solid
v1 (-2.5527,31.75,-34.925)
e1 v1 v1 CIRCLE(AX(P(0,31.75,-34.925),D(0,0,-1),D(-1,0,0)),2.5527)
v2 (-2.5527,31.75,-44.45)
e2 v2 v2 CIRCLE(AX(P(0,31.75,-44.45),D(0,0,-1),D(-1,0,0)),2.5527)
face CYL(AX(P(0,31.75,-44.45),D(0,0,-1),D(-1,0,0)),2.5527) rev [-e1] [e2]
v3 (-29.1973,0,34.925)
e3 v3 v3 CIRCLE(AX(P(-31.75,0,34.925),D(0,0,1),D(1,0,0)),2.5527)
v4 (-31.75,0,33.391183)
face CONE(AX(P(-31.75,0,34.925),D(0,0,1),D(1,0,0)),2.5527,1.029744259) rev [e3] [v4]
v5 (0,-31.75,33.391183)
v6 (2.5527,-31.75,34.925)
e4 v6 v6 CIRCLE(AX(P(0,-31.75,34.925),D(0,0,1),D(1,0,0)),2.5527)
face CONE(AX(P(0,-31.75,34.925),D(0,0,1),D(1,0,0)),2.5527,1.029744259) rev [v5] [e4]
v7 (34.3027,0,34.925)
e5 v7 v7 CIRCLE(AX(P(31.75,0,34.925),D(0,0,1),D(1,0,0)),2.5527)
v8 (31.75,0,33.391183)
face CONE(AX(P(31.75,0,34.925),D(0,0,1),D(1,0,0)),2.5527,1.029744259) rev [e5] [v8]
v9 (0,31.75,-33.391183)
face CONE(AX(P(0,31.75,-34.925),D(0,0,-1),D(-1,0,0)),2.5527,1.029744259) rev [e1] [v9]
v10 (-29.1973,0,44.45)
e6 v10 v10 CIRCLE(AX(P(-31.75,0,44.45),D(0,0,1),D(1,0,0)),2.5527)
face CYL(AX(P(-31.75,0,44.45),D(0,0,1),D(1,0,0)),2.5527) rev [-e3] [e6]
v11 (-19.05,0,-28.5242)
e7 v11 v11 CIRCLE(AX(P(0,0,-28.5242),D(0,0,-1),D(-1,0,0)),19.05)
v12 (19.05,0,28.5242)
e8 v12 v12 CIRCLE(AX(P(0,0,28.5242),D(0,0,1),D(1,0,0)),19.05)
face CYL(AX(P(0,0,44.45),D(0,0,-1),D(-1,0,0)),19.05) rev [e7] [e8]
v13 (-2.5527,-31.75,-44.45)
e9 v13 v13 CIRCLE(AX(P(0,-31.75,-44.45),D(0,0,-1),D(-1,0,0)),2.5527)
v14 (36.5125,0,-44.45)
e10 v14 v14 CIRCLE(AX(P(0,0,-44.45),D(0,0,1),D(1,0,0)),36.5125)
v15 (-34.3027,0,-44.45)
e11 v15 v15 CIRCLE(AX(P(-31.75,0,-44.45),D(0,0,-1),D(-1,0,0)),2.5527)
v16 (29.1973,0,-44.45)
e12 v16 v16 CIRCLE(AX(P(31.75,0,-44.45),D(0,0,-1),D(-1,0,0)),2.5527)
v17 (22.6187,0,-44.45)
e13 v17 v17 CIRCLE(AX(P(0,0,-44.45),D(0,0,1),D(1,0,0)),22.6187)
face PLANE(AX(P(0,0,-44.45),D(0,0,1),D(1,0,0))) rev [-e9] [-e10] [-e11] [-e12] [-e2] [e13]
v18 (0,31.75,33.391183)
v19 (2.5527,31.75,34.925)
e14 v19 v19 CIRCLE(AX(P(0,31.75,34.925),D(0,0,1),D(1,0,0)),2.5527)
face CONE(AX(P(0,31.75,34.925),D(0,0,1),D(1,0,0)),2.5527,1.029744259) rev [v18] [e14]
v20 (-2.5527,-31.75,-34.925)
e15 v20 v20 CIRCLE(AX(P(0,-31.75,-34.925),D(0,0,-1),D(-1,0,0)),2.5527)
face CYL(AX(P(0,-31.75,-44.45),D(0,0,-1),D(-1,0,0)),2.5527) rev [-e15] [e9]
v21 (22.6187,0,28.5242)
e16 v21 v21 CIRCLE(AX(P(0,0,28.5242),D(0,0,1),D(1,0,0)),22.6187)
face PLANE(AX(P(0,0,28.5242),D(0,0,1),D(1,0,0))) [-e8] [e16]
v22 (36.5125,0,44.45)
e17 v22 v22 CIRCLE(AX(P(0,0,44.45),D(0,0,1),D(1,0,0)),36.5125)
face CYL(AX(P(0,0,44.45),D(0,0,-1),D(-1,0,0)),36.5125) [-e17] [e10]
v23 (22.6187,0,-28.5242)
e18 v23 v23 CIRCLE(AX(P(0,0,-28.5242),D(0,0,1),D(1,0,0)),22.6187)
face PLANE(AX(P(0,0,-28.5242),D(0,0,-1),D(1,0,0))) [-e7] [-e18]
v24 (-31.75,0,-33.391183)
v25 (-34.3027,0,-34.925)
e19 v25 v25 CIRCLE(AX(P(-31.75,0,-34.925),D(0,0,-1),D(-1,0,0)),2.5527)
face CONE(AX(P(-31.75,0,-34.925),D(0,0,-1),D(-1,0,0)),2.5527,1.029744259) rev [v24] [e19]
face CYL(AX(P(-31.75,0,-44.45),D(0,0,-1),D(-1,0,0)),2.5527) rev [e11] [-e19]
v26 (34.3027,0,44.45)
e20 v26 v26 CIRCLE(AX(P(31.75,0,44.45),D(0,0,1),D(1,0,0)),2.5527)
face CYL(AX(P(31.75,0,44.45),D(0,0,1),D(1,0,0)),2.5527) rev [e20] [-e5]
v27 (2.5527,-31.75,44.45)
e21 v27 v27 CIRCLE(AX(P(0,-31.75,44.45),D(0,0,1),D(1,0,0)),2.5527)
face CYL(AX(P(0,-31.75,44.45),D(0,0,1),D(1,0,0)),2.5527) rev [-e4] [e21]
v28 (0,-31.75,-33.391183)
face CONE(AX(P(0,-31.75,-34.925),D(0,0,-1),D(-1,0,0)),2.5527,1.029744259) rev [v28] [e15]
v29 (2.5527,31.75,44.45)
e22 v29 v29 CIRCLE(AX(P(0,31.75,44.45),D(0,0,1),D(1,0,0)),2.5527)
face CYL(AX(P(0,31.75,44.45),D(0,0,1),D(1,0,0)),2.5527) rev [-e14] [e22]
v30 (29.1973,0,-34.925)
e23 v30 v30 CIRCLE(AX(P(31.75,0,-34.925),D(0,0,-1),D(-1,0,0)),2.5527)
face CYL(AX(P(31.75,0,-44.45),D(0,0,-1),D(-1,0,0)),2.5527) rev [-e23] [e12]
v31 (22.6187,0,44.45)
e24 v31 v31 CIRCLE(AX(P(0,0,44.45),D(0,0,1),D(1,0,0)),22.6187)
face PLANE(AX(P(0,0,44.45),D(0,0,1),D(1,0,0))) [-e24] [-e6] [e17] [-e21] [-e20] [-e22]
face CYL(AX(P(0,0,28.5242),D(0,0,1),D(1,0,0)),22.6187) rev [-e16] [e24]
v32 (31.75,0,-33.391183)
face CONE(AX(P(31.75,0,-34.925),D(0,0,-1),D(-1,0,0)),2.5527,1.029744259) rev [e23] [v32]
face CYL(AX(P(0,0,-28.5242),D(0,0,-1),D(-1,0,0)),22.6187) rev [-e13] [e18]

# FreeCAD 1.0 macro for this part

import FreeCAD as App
import Part
import Sketcher
from FreeCAD import Vector
Q = App.Units.Quantity


def add_polygon(sketch, points):
    """Adds a closed chain of lines whose ends are joined by coincident constraints."""
    first, n = sketch.GeometryCount, len(points)
    for a, b in zip(points, points[1:] + points[:1]):
        sketch.addGeometry(Part.LineSegment(App.Vector(*a, 0), App.Vector(*b, 0)), False)
    for i in range(n):
        sketch.addConstraint(Sketcher.Constraint("Coincident", first + i, 2, first + (i + 1) % n, 1))

doc = App.newDocument("Part")
params = doc.addObject("Spreadsheet::Sheet", "Params")
for row, (alias, value) in enumerate([
    ("sketch1_diameter", "1.5 in"),
    ("sketch1_diameter2", "2.875 in"),
    ("pad1_length", "3.5 in"),
    ("sketch2_diameter", "1.781 in"),
    ("pocket1_length", "0.627 in"),
    ("sketch3_height", "0.375 in"),
    ("groove_angle", "360 deg"),
    ("linearpattern_pitch", "44.901281 mm"),
    ("linearpattern2_pitch", "2.5 in"),
    ("linearpattern3_pitch", "44.901281 mm"),
    ("sketch4_height", "0.375 in"),
    ("groove2_angle", "360 deg"),
    ("sketch5_height", "0.375 in"),
    ("groove3_angle", "360 deg"),
    ("sketch6_height", "0.375 in"),
    ("groove4_angle", "360 deg"),
], start=1):
    params.set(f"A{row}", alias)
    params.set(f"B{row}", "=" + value)
    params.setAlias(f"B{row}", alias)

body = doc.addObject("PartDesign::Body", "Body")

# Sketch on XY plane
sketch1 = doc.addObject("Sketcher::SketchObject", "Sketch")
body.addObject(sketch1)
sketch1.AttachmentSupport = (doc.XY_Plane, [""])
sketch1.MapMode = "FlatFace"
sketch1.addGeometry(Part.Circle(Vector(0, 0, 0), Vector(0, 0, 1), 36.5125), False)
sketch1.addGeometry(Part.Circle(Vector(0, 0, 0), Vector(0, 0, 1), 19.05), False)
sketch1.addConstraint(Sketcher.Constraint("Coincident", 0, 3, -1, 1))
sketch1.addConstraint(Sketcher.Constraint("Coincident", 1, 3, -1, 1))
sketch1.addConstraint(Sketcher.Constraint("Diameter", 1, Q("1.5 in")))
sketch1.addConstraint(Sketcher.Constraint("Diameter", 0, Q("2.875 in")))
sketch1.setExpression("Constraints[2]", "Params.sketch1_diameter")
sketch1.setExpression("Constraints[3]", "Params.sketch1_diameter2")
pad1 = doc.addObject("PartDesign::Pad", "Pad")
body.addObject(pad1)
pad1.Profile = sketch1
pad1.setExpression("Length", "Params.pad1_length")
pad1.Midplane = True

# Sketch on XY plane
sketch2 = doc.addObject("Sketcher::SketchObject", "Sketch001")
body.addObject(sketch2)
sketch2.AttachmentSupport = (doc.XY_Plane, [""])
sketch2.MapMode = "FlatFace"
sketch2.AttachmentOffset = App.Placement(Vector(0, 0, 1.75 * 25.4), App.Rotation())
sketch2.addGeometry(Part.Circle(Vector(0, 0, 0), Vector(0, 0, 1), 22.6187), False)
sketch2.addConstraint(Sketcher.Constraint("Coincident", 0, 3, -1, 1))
sketch2.addConstraint(Sketcher.Constraint("Diameter", 0, Q("1.781 in")))
sketch2.setExpression("Constraints[1]", "Params.sketch2_diameter")
pocket1 = doc.addObject("PartDesign::Pocket", "Pocket")
body.addObject(pocket1)
pocket1.Profile = sketch2
pocket1.setExpression("Length", "Params.pocket1_length")

# Sketch on YZ plane
sketch3 = doc.addObject("Sketcher::SketchObject", "Sketch002")
body.addObject(sketch3)
sketch3.AttachmentSupport = (doc.YZ_Plane, [""])
sketch3.MapMode = "FlatFace"
add_polygon(sketch3, [(31.75, 33.391183), (31.75, 44.45), (29.1973, 44.45), (29.1973, 34.925)])  # lines 0-3
sketch3.addGeometry(Part.LineSegment(Vector(31.75, 44.45, 0), Vector(31.75, 33.391183, 0)), True)  # axis
sketch3.addConstraint(Sketcher.Constraint("Vertical", 0))
sketch3.addConstraint(Sketcher.Constraint("Horizontal", 1))
sketch3.addConstraint(Sketcher.Constraint("Vertical", 2))
sketch3.addConstraint(Sketcher.Constraint("Vertical", 4))
sketch3.addConstraint(Sketcher.Constraint("Coincident", 4, 1, 0, 2))
sketch3.addConstraint(Sketcher.Constraint("Equal", 0, 4))
sketch3.addConstraint(Sketcher.Constraint("Angle", 3, Q("-31 deg")))
sketch3.addConstraint(Sketcher.Constraint("DistanceY", 2, 2, 2, 1, Q("0.375 in")))
sketch3.addConstraint(Sketcher.Constraint("DistanceX", -1, 1, 0, 2, Q("1.25 in")))
sketch3.addConstraint(Sketcher.Constraint("DistanceY", -1, 1, 0, 2, Q("1.75 in")))
sketch3.addConstraint(Sketcher.Constraint("DistanceX", 1, 2, 1, 1, Q("0.1005 in")))
sketch3.setExpression("Constraints[11]", "Params.sketch3_height")
groove = doc.addObject("PartDesign::Groove", "Groove")
body.addObject(groove)
groove.Profile = sketch3
groove.ReferenceAxis = (sketch3, ["Axis0"])
groove.setExpression("Angle", "Params.groove_angle")
doc.recompute()

datumline = doc.addObject("PartDesign::Line", "DatumLine")
body.addObject(datumline)
datumline.Placement = App.Placement(Vector(0, 0, 0), App.Rotation(Vector(0, 0, 1), Vector(0.707106781, -0.707106781, 0)))
linearpattern = doc.addObject("PartDesign::LinearPattern", "LinearPattern")
body.addObject(linearpattern)
linearpattern.Originals = [groove]
linearpattern.Direction = (datumline, [""])
linearpattern.Mode = "offset"
linearpattern.setExpression("Offset", "Params.linearpattern_pitch")
linearpattern.Occurrences = 2
body.Tip = linearpattern
doc.recompute()

linearpattern2 = doc.addObject("PartDesign::LinearPattern", "LinearPattern001")
body.addObject(linearpattern2)
linearpattern2.Originals = [groove]
linearpattern2.Direction = (doc.Y_Axis, [""])
linearpattern2.Mode = "offset"
linearpattern2.setExpression("Offset", "Params.linearpattern2_pitch")
linearpattern2.Occurrences = 2
linearpattern2.Reversed = True
body.Tip = linearpattern2
doc.recompute()

datumline2 = doc.addObject("PartDesign::Line", "DatumLine001")
body.addObject(datumline2)
datumline2.Placement = App.Placement(Vector(0, 0, 0), App.Rotation(Vector(0, 0, 1), Vector(-0.707106781, -0.707106781, 0)))
linearpattern3 = doc.addObject("PartDesign::LinearPattern", "LinearPattern002")
body.addObject(linearpattern3)
linearpattern3.Originals = [groove]
linearpattern3.Direction = (datumline2, [""])
linearpattern3.Mode = "offset"
linearpattern3.setExpression("Offset", "Params.linearpattern3_pitch")
linearpattern3.Occurrences = 2
body.Tip = linearpattern3
doc.recompute()

mirrored = doc.addObject("PartDesign::Mirrored", "Mirrored")
body.addObject(mirrored)
mirrored.Originals = [pocket1, groove]
mirrored.MirrorPlane = (doc.XY_Plane, [""])
body.Tip = mirrored

# Sketch on YZ plane
sketch4 = doc.addObject("Sketcher::SketchObject", "Sketch003")
body.addObject(sketch4)
sketch4.AttachmentSupport = (doc.YZ_Plane, [""])
sketch4.MapMode = "FlatFace"
sketch4.AttachmentOffset = App.Placement(Vector(0, 0, 1.25 * 25.4), App.Rotation())
add_polygon(sketch4, [(0, -44.45), (0, -33.391183), (-2.5527, -34.925), (-2.5527, -44.45)])  # lines 0-3
sketch4.addConstraint(Sketcher.Constraint("Vertical", 0))
sketch4.addConstraint(Sketcher.Constraint("Vertical", 2))
sketch4.addConstraint(Sketcher.Constraint("Horizontal", 3))
sketch4.addConstraint(Sketcher.Constraint("PointOnObject", 0, 2, -2))
sketch4.addConstraint(Sketcher.Constraint("Angle", 1, Q("-149 deg")))
sketch4.addConstraint(Sketcher.Constraint("DistanceY", 2, 2, 2, 1, Q("0.375 in")))
sketch4.addConstraint(Sketcher.Constraint("DistanceY", 2, 2, -1, 1, Q("1.75 in")))
sketch4.addConstraint(Sketcher.Constraint("DistanceX", 3, 1, 3, 2, Q("0.1005 in")))
sketch4.setExpression("Constraints[9]", "Params.sketch4_height")
groove2 = doc.addObject("PartDesign::Groove", "Groove001")
body.addObject(groove2)
groove2.Profile = sketch4
groove2.ReferenceAxis = (sketch4, ["V_Axis"])
groove2.setExpression("Angle", "Params.groove2_angle")

# Sketch on YZ plane
sketch5 = doc.addObject("Sketcher::SketchObject", "Sketch004")
body.addObject(sketch5)
sketch5.AttachmentSupport = (doc.YZ_Plane, [""])
sketch5.MapMode = "FlatFace"
add_polygon(sketch5, [(-31.75, -44.45), (-31.75, -33.391183), (-34.3027, -34.925), (-34.3027, -44.45)])  # lines 0-3
sketch5.addGeometry(Part.LineSegment(Vector(-31.75, -33.391183, 0), Vector(-31.75, -44.45, 0)), True)  # axis
sketch5.addConstraint(Sketcher.Constraint("Vertical", 0))
sketch5.addConstraint(Sketcher.Constraint("Vertical", 2))
sketch5.addConstraint(Sketcher.Constraint("Horizontal", 3))
sketch5.addConstraint(Sketcher.Constraint("Vertical", 4))
sketch5.addConstraint(Sketcher.Constraint("Coincident", 4, 1, 0, 2))
sketch5.addConstraint(Sketcher.Constraint("Horizontal", 2, 2, 4, 2))
sketch5.addConstraint(Sketcher.Constraint("Angle", 1, Q("-149 deg")))
sketch5.addConstraint(Sketcher.Constraint("DistanceY", 2, 2, 2, 1, Q("0.375 in")))
sketch5.addConstraint(Sketcher.Constraint("DistanceX", 0, 2, -1, 1, Q("1.25 in")))
sketch5.addConstraint(Sketcher.Constraint("DistanceY", 2, 2, -1, 1, Q("1.75 in")))
sketch5.addConstraint(Sketcher.Constraint("DistanceX", 3, 1, 3, 2, Q("0.1005 in")))
sketch5.setExpression("Constraints[11]", "Params.sketch5_height")
groove3 = doc.addObject("PartDesign::Groove", "Groove002")
body.addObject(groove3)
groove3.Profile = sketch5
groove3.ReferenceAxis = (sketch5, ["Axis0"])
groove3.setExpression("Angle", "Params.groove3_angle")

# Sketch on YZ plane
sketch6 = doc.addObject("Sketcher::SketchObject", "Sketch005")
body.addObject(sketch6)
sketch6.AttachmentSupport = (doc.YZ_Plane, [""])
sketch6.MapMode = "FlatFace"
sketch6.AttachmentOffset = App.Placement(Vector(0, 0, -1.25 * 25.4), App.Rotation())
add_polygon(sketch6, [(0, -44.45), (0, -33.391183), (-2.5527, -34.925), (-2.5527, -44.45)])  # lines 0-3
sketch6.addConstraint(Sketcher.Constraint("Vertical", 0))
sketch6.addConstraint(Sketcher.Constraint("Vertical", 2))
sketch6.addConstraint(Sketcher.Constraint("Horizontal", 3))
sketch6.addConstraint(Sketcher.Constraint("PointOnObject", 0, 2, -2))
sketch6.addConstraint(Sketcher.Constraint("Angle", 1, Q("-149 deg")))
sketch6.addConstraint(Sketcher.Constraint("DistanceY", 2, 2, 2, 1, Q("0.375 in")))
sketch6.addConstraint(Sketcher.Constraint("DistanceY", 2, 2, -1, 1, Q("1.75 in")))
sketch6.addConstraint(Sketcher.Constraint("DistanceX", 3, 1, 3, 2, Q("0.1005 in")))
sketch6.setExpression("Constraints[9]", "Params.sketch6_height")
groove4 = doc.addObject("PartDesign::Groove", "Groove003")
body.addObject(groove4)
groove4.Profile = sketch6
groove4.ReferenceAxis = (sketch6, ["V_Axis"])
groove4.setExpression("Angle", "Params.groove4_angle")

doc.recompute()
